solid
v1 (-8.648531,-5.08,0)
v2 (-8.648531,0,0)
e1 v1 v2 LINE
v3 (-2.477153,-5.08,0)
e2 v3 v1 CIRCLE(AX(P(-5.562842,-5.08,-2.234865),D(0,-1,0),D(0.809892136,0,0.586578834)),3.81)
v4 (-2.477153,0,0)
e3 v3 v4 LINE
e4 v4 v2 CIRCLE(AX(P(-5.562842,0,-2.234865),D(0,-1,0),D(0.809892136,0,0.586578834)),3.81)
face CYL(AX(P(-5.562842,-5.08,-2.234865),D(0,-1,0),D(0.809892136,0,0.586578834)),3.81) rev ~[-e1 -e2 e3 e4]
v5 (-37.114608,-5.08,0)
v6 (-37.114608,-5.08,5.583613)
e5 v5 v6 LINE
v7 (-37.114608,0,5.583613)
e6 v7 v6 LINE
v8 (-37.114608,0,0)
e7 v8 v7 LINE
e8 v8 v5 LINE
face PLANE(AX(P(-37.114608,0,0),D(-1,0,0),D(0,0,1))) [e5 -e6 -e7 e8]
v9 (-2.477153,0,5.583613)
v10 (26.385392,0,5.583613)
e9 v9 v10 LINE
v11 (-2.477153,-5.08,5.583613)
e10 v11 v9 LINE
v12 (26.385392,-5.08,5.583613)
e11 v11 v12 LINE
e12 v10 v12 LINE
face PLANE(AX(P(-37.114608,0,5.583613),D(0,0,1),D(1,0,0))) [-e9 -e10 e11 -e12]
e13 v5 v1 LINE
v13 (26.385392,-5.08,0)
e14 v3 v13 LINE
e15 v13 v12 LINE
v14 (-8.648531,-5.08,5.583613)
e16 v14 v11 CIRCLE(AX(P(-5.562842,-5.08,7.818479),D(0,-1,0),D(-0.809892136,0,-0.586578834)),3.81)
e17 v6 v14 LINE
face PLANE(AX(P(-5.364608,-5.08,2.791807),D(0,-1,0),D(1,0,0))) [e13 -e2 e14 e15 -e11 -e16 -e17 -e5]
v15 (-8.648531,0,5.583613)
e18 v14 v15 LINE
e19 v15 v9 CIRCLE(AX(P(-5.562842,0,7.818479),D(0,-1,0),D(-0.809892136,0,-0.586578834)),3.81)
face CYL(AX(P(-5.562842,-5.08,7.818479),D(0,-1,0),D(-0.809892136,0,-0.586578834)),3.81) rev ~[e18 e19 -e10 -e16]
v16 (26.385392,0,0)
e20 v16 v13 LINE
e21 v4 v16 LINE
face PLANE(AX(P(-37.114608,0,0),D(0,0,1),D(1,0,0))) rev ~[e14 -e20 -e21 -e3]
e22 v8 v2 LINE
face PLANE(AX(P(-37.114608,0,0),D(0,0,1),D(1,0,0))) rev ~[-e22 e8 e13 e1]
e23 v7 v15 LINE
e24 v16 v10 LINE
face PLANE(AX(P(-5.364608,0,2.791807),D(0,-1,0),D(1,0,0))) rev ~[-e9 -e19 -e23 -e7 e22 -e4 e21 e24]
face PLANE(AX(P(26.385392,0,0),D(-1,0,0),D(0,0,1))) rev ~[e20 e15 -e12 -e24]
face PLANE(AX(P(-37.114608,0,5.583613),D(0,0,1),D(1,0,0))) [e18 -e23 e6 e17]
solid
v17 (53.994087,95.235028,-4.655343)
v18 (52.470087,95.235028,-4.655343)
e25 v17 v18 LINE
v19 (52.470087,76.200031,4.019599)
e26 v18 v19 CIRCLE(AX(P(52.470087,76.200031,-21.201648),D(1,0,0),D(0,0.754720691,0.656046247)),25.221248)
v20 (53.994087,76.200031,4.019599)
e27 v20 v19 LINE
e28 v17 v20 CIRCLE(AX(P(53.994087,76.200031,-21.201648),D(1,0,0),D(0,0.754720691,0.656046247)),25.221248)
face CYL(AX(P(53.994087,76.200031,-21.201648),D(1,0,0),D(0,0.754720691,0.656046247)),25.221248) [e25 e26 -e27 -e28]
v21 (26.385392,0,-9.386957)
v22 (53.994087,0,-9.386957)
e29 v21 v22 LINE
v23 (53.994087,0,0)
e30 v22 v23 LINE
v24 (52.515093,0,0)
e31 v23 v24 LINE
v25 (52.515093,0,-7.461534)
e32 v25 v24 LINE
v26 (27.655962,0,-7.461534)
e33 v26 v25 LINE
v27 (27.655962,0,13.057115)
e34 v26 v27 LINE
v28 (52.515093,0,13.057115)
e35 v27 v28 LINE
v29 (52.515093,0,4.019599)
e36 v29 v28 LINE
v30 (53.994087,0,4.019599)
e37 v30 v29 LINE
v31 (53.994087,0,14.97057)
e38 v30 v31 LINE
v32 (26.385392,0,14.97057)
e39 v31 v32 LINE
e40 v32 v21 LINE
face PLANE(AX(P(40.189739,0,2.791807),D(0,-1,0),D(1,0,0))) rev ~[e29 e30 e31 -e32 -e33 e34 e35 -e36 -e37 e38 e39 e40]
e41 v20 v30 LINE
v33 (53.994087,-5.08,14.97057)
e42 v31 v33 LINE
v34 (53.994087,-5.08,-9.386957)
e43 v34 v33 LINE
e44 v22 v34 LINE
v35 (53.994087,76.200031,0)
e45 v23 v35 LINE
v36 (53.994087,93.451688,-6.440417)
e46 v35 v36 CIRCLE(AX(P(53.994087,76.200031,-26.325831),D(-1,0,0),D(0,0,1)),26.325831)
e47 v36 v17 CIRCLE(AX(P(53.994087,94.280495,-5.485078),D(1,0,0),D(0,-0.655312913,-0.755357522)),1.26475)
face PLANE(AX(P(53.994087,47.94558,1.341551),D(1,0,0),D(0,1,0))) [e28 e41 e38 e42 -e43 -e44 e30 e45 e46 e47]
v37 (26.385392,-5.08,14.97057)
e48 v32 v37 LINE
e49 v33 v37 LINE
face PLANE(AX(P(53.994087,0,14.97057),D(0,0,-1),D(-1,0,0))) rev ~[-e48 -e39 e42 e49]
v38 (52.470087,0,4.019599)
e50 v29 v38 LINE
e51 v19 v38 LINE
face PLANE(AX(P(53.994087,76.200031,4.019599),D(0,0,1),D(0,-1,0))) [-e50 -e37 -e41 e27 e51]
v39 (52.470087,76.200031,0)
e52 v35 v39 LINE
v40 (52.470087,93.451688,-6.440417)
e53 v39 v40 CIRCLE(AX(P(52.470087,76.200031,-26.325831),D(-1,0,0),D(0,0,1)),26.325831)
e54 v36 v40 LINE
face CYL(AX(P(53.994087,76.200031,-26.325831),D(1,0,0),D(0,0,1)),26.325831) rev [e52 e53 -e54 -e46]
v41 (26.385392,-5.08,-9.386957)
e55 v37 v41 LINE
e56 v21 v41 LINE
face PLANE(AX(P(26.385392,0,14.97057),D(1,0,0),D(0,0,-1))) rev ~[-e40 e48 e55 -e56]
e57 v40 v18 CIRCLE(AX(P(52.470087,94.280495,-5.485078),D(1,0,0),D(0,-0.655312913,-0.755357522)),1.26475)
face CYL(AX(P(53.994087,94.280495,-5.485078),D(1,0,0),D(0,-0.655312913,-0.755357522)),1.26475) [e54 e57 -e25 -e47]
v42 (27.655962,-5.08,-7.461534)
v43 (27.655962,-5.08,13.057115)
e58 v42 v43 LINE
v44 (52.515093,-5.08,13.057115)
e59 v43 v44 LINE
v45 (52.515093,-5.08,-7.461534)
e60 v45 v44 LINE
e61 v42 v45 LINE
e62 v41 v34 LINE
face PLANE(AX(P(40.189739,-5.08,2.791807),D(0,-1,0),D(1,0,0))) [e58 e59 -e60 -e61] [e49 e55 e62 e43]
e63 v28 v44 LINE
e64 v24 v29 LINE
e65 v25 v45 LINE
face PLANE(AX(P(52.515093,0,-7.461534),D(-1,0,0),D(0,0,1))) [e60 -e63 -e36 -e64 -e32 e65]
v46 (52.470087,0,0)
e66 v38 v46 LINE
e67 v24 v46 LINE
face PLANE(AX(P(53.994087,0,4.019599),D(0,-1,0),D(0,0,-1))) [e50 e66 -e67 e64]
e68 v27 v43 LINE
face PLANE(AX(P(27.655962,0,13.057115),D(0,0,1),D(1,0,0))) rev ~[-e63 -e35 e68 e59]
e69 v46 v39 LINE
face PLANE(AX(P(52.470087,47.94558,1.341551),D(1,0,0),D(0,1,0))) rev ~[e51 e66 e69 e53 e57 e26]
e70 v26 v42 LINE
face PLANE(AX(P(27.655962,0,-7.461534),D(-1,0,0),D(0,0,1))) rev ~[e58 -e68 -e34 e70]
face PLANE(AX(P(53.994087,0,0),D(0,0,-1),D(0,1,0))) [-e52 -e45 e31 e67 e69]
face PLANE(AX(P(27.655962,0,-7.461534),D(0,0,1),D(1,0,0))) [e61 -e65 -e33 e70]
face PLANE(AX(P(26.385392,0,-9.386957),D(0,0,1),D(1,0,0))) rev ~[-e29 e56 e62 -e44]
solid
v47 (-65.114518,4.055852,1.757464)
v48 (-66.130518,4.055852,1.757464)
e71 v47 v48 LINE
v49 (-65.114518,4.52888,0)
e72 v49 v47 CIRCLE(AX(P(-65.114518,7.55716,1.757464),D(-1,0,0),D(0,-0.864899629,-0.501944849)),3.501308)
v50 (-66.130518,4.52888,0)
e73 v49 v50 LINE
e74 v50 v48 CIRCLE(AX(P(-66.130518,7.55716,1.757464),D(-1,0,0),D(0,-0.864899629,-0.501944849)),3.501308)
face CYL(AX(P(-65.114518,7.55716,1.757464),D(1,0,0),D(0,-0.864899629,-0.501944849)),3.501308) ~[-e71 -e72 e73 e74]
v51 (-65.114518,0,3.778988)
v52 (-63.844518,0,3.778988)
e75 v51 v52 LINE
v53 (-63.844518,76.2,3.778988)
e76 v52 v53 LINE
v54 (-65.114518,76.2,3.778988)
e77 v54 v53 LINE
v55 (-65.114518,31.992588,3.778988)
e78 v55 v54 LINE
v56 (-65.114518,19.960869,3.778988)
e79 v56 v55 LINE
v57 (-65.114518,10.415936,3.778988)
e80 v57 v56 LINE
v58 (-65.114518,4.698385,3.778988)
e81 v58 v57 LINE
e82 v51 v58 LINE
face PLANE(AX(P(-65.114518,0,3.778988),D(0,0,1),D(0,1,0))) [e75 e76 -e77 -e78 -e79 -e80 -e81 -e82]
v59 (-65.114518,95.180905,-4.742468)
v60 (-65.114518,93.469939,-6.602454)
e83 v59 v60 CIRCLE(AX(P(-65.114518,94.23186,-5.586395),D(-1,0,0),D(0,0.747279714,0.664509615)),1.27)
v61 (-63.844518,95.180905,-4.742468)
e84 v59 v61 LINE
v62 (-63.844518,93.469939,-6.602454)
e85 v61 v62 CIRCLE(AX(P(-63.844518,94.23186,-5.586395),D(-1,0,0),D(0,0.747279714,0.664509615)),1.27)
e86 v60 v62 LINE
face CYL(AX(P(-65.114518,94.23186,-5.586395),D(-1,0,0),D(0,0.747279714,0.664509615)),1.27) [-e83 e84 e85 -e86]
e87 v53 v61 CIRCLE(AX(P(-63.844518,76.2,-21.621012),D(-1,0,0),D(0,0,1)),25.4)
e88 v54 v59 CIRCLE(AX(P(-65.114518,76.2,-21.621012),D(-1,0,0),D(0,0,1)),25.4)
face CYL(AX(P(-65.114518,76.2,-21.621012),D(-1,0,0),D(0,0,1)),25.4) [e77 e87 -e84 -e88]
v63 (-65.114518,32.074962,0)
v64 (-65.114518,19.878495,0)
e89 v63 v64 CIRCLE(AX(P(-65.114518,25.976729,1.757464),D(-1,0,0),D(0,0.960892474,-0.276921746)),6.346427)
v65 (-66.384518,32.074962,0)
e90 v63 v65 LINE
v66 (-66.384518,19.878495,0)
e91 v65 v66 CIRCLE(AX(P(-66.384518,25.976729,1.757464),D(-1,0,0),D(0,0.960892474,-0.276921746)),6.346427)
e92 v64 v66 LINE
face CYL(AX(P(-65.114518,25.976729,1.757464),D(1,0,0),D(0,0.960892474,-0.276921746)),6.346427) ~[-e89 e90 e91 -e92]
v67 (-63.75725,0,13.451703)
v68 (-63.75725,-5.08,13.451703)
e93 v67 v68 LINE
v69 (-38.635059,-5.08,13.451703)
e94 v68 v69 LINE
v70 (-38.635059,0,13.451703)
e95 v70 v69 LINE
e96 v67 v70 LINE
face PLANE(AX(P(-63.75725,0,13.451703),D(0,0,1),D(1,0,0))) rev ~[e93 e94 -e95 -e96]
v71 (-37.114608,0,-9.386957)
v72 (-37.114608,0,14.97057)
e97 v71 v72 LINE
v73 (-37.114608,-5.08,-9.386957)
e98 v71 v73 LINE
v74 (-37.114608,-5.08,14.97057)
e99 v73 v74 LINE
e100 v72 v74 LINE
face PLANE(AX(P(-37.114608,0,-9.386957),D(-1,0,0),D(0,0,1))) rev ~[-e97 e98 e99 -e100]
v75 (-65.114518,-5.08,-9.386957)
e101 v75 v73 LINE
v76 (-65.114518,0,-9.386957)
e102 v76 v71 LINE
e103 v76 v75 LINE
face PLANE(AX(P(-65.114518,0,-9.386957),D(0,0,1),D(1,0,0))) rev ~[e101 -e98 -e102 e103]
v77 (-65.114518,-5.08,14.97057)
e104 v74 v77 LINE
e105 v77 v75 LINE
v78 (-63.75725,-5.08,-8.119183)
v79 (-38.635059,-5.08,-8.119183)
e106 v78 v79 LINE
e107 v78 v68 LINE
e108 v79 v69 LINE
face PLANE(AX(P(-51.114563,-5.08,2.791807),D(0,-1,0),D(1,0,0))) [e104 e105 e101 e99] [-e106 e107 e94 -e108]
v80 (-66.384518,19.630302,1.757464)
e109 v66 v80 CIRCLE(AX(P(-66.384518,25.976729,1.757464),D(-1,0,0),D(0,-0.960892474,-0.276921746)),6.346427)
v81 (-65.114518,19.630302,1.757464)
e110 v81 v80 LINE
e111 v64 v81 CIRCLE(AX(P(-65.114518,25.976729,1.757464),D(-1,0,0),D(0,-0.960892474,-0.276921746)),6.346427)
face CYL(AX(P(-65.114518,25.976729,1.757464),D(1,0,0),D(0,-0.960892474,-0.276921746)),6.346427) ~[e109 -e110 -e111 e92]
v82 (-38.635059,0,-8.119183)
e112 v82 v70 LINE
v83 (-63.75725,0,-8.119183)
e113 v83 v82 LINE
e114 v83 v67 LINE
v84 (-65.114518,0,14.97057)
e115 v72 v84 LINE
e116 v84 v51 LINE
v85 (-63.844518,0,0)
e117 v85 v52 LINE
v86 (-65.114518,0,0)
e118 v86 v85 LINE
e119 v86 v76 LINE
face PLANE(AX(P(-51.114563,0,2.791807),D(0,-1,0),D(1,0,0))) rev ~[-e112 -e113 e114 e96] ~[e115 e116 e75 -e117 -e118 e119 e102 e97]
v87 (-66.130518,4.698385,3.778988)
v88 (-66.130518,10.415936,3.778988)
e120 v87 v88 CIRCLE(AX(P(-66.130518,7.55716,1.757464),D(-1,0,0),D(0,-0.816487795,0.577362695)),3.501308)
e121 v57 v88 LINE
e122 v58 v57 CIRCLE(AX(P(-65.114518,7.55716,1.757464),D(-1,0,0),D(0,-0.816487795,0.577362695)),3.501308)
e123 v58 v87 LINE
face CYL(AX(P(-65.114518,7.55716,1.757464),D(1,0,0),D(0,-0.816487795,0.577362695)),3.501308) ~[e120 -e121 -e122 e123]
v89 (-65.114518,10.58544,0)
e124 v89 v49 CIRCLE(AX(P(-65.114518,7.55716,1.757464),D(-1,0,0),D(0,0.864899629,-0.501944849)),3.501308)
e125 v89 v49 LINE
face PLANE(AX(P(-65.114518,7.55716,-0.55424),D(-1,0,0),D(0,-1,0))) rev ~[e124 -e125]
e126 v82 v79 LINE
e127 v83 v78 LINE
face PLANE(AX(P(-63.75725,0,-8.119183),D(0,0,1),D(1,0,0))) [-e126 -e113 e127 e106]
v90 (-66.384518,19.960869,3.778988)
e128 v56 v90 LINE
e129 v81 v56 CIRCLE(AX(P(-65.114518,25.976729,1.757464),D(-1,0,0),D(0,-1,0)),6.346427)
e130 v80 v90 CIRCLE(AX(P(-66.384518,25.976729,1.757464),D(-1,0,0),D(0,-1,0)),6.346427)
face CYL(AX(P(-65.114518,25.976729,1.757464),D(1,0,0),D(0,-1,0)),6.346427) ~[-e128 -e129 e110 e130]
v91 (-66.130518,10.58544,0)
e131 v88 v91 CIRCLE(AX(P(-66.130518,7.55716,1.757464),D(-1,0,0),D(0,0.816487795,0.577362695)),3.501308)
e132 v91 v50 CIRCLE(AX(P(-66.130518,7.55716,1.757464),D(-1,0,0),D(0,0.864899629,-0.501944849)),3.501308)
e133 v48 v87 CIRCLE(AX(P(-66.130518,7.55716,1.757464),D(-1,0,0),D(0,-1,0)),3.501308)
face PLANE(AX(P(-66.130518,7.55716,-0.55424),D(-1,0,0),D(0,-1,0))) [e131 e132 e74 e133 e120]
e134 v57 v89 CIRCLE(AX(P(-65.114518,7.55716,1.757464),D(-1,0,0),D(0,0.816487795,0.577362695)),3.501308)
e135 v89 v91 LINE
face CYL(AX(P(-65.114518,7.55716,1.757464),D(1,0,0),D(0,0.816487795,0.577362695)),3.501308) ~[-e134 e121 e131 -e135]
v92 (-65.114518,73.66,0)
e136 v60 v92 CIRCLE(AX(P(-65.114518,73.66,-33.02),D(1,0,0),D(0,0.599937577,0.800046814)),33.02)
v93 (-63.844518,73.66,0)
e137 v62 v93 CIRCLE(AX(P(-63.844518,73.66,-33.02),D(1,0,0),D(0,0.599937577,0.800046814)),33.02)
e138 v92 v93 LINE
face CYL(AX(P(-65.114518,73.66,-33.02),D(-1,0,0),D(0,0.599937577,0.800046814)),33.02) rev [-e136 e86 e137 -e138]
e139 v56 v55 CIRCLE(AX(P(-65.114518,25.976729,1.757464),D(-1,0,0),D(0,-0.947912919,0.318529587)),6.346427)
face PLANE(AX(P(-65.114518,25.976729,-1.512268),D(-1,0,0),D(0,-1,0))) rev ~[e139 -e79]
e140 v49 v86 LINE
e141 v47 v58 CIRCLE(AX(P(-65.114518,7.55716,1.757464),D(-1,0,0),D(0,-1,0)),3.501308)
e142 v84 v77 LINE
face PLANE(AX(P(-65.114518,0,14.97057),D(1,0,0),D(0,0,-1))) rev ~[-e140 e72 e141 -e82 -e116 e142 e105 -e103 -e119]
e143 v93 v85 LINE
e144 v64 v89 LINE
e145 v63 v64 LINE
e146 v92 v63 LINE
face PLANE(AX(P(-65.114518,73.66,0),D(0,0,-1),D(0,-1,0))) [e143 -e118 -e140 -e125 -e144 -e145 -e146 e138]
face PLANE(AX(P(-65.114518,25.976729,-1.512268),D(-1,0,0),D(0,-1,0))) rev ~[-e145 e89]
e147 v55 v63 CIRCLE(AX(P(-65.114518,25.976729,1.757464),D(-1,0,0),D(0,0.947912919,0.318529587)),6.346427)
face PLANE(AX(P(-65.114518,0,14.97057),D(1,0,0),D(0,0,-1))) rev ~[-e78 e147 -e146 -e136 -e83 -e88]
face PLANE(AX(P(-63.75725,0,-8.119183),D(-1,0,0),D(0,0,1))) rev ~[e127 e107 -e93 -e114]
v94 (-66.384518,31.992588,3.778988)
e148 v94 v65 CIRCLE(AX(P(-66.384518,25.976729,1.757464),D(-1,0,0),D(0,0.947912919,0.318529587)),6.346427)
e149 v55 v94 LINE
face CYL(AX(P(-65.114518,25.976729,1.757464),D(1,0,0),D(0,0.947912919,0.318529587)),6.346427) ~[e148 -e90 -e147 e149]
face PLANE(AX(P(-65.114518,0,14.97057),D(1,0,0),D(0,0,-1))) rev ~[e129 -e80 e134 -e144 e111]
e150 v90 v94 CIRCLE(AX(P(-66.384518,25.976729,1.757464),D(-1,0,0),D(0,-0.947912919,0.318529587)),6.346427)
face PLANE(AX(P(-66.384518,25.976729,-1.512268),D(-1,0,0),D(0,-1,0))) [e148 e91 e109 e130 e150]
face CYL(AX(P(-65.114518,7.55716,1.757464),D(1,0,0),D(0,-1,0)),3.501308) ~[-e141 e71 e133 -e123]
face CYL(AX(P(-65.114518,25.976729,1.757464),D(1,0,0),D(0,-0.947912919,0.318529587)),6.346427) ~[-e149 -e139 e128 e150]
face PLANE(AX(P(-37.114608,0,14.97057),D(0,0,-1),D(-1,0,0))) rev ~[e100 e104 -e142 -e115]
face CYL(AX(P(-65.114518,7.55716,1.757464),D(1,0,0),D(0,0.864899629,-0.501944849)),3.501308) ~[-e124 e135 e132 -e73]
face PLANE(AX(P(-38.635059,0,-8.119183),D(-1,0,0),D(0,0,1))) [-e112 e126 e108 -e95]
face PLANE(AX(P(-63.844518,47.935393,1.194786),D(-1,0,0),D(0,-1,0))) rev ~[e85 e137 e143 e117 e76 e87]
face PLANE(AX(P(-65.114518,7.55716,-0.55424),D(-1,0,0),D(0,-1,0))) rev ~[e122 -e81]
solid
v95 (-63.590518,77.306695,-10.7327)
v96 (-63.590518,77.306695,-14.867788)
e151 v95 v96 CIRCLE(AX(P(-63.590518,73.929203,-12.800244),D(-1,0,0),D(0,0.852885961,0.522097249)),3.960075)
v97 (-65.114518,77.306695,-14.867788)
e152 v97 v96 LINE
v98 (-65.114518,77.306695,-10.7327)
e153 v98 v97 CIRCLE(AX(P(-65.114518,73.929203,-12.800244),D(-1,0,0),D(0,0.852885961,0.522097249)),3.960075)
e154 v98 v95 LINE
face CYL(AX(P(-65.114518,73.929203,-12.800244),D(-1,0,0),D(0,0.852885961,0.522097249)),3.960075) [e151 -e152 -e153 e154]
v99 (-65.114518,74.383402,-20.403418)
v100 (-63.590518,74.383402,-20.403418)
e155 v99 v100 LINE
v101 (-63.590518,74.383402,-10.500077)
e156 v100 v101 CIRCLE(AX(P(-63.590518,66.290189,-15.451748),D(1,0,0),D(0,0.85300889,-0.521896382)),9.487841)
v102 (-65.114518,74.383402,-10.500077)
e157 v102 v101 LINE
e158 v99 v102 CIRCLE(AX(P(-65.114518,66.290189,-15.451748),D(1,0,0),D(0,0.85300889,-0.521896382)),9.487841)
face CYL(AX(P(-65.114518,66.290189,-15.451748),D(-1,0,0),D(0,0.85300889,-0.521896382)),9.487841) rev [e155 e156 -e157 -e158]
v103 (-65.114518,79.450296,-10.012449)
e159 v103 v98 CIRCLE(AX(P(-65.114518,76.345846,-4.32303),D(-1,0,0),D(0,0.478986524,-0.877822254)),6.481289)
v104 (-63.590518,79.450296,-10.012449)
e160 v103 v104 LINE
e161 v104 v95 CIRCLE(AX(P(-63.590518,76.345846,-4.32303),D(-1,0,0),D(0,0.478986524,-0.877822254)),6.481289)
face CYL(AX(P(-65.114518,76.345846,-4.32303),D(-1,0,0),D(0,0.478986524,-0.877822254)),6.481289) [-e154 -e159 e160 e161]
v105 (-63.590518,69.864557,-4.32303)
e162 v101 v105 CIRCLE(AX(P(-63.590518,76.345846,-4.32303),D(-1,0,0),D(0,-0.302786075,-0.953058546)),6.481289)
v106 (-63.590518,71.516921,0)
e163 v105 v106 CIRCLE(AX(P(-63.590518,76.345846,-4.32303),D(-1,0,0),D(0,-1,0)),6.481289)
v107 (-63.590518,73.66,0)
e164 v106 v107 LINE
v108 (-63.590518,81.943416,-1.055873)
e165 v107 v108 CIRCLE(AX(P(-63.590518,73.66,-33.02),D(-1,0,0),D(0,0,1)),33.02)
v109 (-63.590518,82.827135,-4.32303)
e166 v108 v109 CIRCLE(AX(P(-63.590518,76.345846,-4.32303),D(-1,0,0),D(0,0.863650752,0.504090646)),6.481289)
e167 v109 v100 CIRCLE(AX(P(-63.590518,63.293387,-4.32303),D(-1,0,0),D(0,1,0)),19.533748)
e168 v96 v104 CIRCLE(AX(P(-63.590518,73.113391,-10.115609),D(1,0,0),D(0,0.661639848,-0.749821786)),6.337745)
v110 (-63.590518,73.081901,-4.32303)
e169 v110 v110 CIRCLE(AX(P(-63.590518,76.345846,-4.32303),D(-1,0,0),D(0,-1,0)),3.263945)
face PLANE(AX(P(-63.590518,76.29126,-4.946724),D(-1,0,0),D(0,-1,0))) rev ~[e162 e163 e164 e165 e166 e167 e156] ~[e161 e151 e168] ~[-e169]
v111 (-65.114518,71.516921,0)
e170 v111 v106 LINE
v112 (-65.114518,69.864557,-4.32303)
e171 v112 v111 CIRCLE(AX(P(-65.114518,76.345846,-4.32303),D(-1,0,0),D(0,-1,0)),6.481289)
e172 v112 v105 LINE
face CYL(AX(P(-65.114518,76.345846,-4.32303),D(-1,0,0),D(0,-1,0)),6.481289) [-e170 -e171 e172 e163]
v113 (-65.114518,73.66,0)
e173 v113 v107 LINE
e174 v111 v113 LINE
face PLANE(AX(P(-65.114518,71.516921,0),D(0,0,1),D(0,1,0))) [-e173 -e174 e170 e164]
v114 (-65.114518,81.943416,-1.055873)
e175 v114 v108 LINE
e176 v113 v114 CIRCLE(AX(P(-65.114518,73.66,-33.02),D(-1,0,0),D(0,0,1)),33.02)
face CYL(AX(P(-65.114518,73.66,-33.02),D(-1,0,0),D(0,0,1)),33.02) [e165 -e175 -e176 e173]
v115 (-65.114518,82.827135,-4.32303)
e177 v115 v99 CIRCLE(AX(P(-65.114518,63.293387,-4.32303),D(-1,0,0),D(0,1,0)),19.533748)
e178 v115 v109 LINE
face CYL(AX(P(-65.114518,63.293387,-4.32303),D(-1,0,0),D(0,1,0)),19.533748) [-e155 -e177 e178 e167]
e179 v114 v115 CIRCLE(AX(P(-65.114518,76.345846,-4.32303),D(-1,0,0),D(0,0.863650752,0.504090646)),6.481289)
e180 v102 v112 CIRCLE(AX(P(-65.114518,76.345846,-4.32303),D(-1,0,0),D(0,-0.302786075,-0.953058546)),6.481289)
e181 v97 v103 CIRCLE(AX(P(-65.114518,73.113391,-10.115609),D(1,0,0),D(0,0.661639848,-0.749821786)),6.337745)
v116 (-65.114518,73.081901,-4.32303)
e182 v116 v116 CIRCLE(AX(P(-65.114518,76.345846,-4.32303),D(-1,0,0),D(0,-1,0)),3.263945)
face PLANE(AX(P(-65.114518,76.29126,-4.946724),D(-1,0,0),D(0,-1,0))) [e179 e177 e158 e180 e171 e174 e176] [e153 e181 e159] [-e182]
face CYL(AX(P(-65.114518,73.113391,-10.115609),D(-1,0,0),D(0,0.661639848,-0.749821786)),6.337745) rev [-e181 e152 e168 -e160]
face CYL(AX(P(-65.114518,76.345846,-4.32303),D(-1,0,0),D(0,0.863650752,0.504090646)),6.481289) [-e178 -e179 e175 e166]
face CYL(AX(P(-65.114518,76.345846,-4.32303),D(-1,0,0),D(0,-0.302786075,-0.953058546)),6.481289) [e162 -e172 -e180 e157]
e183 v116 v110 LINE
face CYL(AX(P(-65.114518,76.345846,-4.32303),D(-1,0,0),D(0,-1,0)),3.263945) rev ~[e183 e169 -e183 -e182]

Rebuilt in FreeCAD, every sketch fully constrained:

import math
import FreeCAD as App
import Part
import Sketcher
from FreeCAD import Vector
Q = App.Units.Quantity

doc = App.newDocument("Part")
body = doc.addObject("PartDesign::Body", "Body")

sketch1 = body.newObject("Sketcher::SketchObject", "Sketch")
sketch1.AttachmentSupport = (doc.getObject("XZ_Plane"), [""])
sketch1.MapMode = "FlatFace"
sketch1.addGeometry(Part.LineSegment(Vector(26, 15, 0), Vector(26, -9, 0)), False)
sketch1.addGeometry(Part.LineSegment(Vector(26, -9, 0), Vector(54, -9, 0)), False)
sketch1.addGeometry(Part.LineSegment(Vector(54, -9, 0), Vector(54, 15, 0)), False)
sketch1.addGeometry(Part.LineSegment(Vector(54, 15, 0), Vector(26, 15, 0)), False)
sketch1.addGeometry(Part.LineSegment(Vector(53, -7, 0), Vector(28, -7, 0)), False)
sketch1.addGeometry(Part.LineSegment(Vector(28, -7, 0), Vector(28, 13, 0)), False)
sketch1.addGeometry(Part.LineSegment(Vector(28, 13, 0), Vector(53, 13, 0)), False)
sketch1.addGeometry(Part.LineSegment(Vector(53, 13, 0), Vector(53, -7, 0)), False)
sketch1.addConstraint(Sketcher.Constraint("Coincident", 0, 2, 1, 1))
sketch1.addConstraint(Sketcher.Constraint("Coincident", 1, 2, 2, 1))
sketch1.addConstraint(Sketcher.Constraint("Coincident", 2, 2, 3, 1))
sketch1.addConstraint(Sketcher.Constraint("Coincident", 3, 2, 0, 1))
sketch1.addConstraint(Sketcher.Constraint("Coincident", 4, 2, 5, 1))
sketch1.addConstraint(Sketcher.Constraint("Coincident", 5, 2, 6, 1))
sketch1.addConstraint(Sketcher.Constraint("Coincident", 6, 2, 7, 1))
sketch1.addConstraint(Sketcher.Constraint("Coincident", 7, 2, 4, 1))
sketch1.addConstraint(Sketcher.Constraint("Vertical", 0))
sketch1.addConstraint(Sketcher.Constraint("Horizontal", 1))
sketch1.addConstraint(Sketcher.Constraint("Vertical", 2))
sketch1.addConstraint(Sketcher.Constraint("Horizontal", 3))
sketch1.addConstraint(Sketcher.Constraint("Horizontal", 4))
sketch1.addConstraint(Sketcher.Constraint("Vertical", 5))
sketch1.addConstraint(Sketcher.Constraint("Horizontal", 6))
sketch1.addConstraint(Sketcher.Constraint("Vertical", 7))
sketch1.addConstraint(Sketcher.Constraint("DistanceX", 4, 2, 4, 1, Q("24.859131 mm")))
sketch1.addConstraint(Sketcher.Constraint("DistanceY", 5, 1, 5, 2, Q("20.518649 mm")))
sketch1.addConstraint(Sketcher.Constraint("DistanceX", 3, 2, 6, 2, Q("26.129702 mm")))
sketch1.addConstraint(Sketcher.Constraint("DistanceX", 1, 1, 1, 2, Q("27.608696 mm")))
sketch1.addConstraint(Sketcher.Constraint("DistanceY", 0, 2, 0, 1, Q("24.357527 mm")))
sketch1.addConstraint(Sketcher.Constraint("DistanceX", -1, 1, 0, 2, Q("26.385392 mm")))
sketch1.addConstraint(Sketcher.Constraint("DistanceY", -1, 1, 2, 2, Q("14.97057 mm")))
sketch1.addConstraint(Sketcher.Constraint("DistanceY", 0, 2, 5, 2, Q("22.444072 mm")))
pad1 = body.newObject("PartDesign::Pad", "Pad")
pad1.Profile = sketch1
pad1.Length = Q("0.2 in")

sketch2 = body.newObject("Sketcher::SketchObject", "Sketch001")
sketch2.AttachmentSupport = (doc.getObject("XZ_Plane"), [""])
sketch2.MapMode = "FlatFace"
sketch2.addGeometry(Part.LineSegment(Vector(-64, 13, 0), Vector(-64, -8, 0)), False)
sketch2.addGeometry(Part.LineSegment(Vector(-64, -8, 0), Vector(-39, -8, 0)), False)
sketch2.addGeometry(Part.LineSegment(Vector(-39, -8, 0), Vector(-39, 13, 0)), False)
sketch2.addGeometry(Part.LineSegment(Vector(-39, 13, 0), Vector(-64, 13, 0)), False)
sketch2.addGeometry(Part.LineSegment(Vector(28, 13, 0), Vector(28, -7, 0)), False)
sketch2.addGeometry(Part.LineSegment(Vector(28, -7, 0), Vector(53, -7, 0)), False)
sketch2.addGeometry(Part.LineSegment(Vector(53, -7, 0), Vector(53, 13, 0)), False)
sketch2.addGeometry(Part.LineSegment(Vector(53, 13, 0), Vector(28, 13, 0)), False)
sketch2.addConstraint(Sketcher.Constraint("Coincident", 0, 2, 1, 1))
sketch2.addConstraint(Sketcher.Constraint("Coincident", 1, 2, 2, 1))
sketch2.addConstraint(Sketcher.Constraint("Coincident", 2, 2, 3, 1))
sketch2.addConstraint(Sketcher.Constraint("Coincident", 3, 2, 0, 1))
sketch2.addConstraint(Sketcher.Constraint("Coincident", 4, 2, 5, 1))
sketch2.addConstraint(Sketcher.Constraint("Coincident", 5, 2, 6, 1))
sketch2.addConstraint(Sketcher.Constraint("Coincident", 6, 2, 7, 1))
sketch2.addConstraint(Sketcher.Constraint("Coincident", 7, 2, 4, 1))
sketch2.addConstraint(Sketcher.Constraint("Vertical", 0))
sketch2.addConstraint(Sketcher.Constraint("Horizontal", 1))
sketch2.addConstraint(Sketcher.Constraint("Vertical", 2))
sketch2.addConstraint(Sketcher.Constraint("Horizontal", 3))
sketch2.addConstraint(Sketcher.Constraint("Vertical", 4))
sketch2.addConstraint(Sketcher.Constraint("Horizontal", 5))
sketch2.addConstraint(Sketcher.Constraint("Vertical", 6))
sketch2.addConstraint(Sketcher.Constraint("Horizontal", 7))
sketch2.addConstraint(Sketcher.Constraint("DistanceX", 1, 1, 1, 2, Q("25.122192 mm")))
sketch2.addConstraint(Sketcher.Constraint("DistanceX", 5, 1, 5, 2, Q("24.859131 mm")))
sketch2.addConstraint(Sketcher.Constraint("DistanceY", 4, 2, 4, 1, Q("20.518649 mm")))
sketch2.addConstraint(Sketcher.Constraint("DistanceY", 1, 2, 6, 2, Q("21.176298 mm")))
sketch2.addConstraint(Sketcher.Constraint("DistanceY", 0, 2, 0, 1, Q("21.570887 mm")))
sketch2.addConstraint(Sketcher.Constraint("DistanceX", 0, 2, -1, 1, Q("63.75725 mm")))
sketch2.addConstraint(Sketcher.Constraint("DistanceX", -1, 1, 4, 2, Q("27.655962 mm")))
sketch2.addConstraint(Sketcher.Constraint("DistanceY", 0, 2, -1, 1, Q("8.119183 mm")))
pocket1 = body.newObject("PartDesign::Pocket", "Pocket")
pocket1.Profile = sketch2
pocket1.Length = Q("0.2 in")
pocket1.Reversed = True

sketch3 = body.newObject("Sketcher::SketchObject", "Sketch002")
sketch3.AttachmentSupport = (doc.getObject("YZ_Plane"), [""])
sketch3.MapMode = "FlatFace"
sketch3.AttachmentOffset = App.Placement(Vector(0, 0, 53.994087), App.Rotation())
sketch3.addGeometry(Part.LineSegment(Vector(76.2, 4, 0), Vector(0, 4, 0)), False)
sketch3.addGeometry(Part.LineSegment(Vector(0, 4, 0), Vector(0, 0, 0)), False)
sketch3.addGeometry(Part.LineSegment(Vector(0, 0, 0), Vector(76.2, 0, 0)), False)
sketch3.addGeometry(Part.ArcOfCircle(Part.Circle(Vector(76.2, -26.3, 0), Vector(0, 0, 1), 26.3), math.radians(49), math.radians(90)), False)
sketch3.addGeometry(Part.ArcOfCircle(Part.Circle(Vector(94.3, -5.5, 0), Vector(0, 0, 1), 1.3), math.radians(-131), math.radians(41)), False)
sketch3.addGeometry(Part.ArcOfCircle(Part.Circle(Vector(76.2, -21.2, 0), Vector(0, 0, 1), 25.2), math.radians(41), math.radians(90)), False)
sketch3.addConstraint(Sketcher.Constraint("Coincident", 0, 2, 1, 1))
sketch3.addConstraint(Sketcher.Constraint("Coincident", 1, 2, 2, 1))
sketch3.addConstraint(Sketcher.Constraint("Tangent", 2, 2, 3, 2))
sketch3.addConstraint(Sketcher.Constraint("Tangent", 3, 1, 4, 1))
sketch3.addConstraint(Sketcher.Constraint("Tangent", 4, 2, 5, 1))
sketch3.addConstraint(Sketcher.Constraint("Tangent", 5, 2, 0, 1))
sketch3.addConstraint(Sketcher.Constraint("Horizontal", 0))
sketch3.addConstraint(Sketcher.Constraint("Vertical", 1))
sketch3.addConstraint(Sketcher.Constraint("Horizontal", 2))
sketch3.addConstraint(Sketcher.Constraint("Coincident", 1, 2, -1, 1))
sketch3.addConstraint(Sketcher.Constraint("Vertical", 3, 3, 5, 3))
sketch3.addConstraint(Sketcher.Constraint("Radius", 3, Q("26.325831 mm")))
sketch3.addConstraint(Sketcher.Constraint("Radius", 4, Q("1.26475 mm")))
sketch3.addConstraint(Sketcher.Constraint("DistanceY", 1, 2, 1, 1, Q("4.019599 mm")))
sketch3.addConstraint(Sketcher.Constraint("Radius", 5, Q("25.221248 mm")))
sketch3.addConstraint(Sketcher.Constraint("DistanceX", 0, 2, 0, 1, Q("76.200031 mm")))
pad2 = body.newObject("PartDesign::Pad", "Pad001")
pad2.Profile = sketch3
pad2.Length = Q("0.06 in")
pad2.Reversed = True

sketch4 = body.newObject("Sketcher::SketchObject", "Sketch003")
sketch4.AttachmentSupport = (doc.getObject("YZ_Plane"), [""])
sketch4.MapMode = "FlatFace"
sketch4.AttachmentOffset = App.Placement(Vector(0, 0, -65.114518), App.Rotation())
sketch4.addGeometry(Part.Circle(Vector(76.3, -4.3, 0), Vector(0, 0, 1), 3.3), False)
sketch4.addGeometry(Part.ArcOfCircle(Part.Circle(Vector(76.3, -4.3, 0), Vector(0, 0, 1), 6.5), math.radians(-81), math.radians(-61)), False)
sketch4.addGeometry(Part.ArcOfCircle(Part.Circle(Vector(73.1, -10.1, 0), Vector(0, 0, 1), 6.3), math.radians(-49), math.radians(1)), False)
sketch4.addGeometry(Part.ArcOfCircle(Part.Circle(Vector(73.9, -12.8, 0), Vector(0, 0, 1), 4), math.radians(-31), math.radians(31)), False)
sketch4.addConstraint(Sketcher.Constraint("Coincident", 1, 2, 2, 2))
sketch4.addConstraint(Sketcher.Constraint("Coincident", 2, 1, 3, 1))
sketch4.addConstraint(Sketcher.Constraint("Coincident", 3, 2, 1, 1))
sketch4.addConstraint(Sketcher.Constraint("Coincident", 1, 3, 0, 3))
sketch4.addConstraint(Sketcher.Constraint("Vertical", 2, 1, 3, 2))
sketch4.addConstraint(Sketcher.Constraint("Diameter", 0, Q("6.52789 mm")))
sketch4.addConstraint(Sketcher.Constraint("Radius", 1, Q("6.481289 mm")))
sketch4.addConstraint(Sketcher.Constraint("Radius", 2, Q("6.337745 mm")))
sketch4.addConstraint(Sketcher.Constraint("Radius", 3, Q("3.960075 mm")))
sketch4.addConstraint(Sketcher.Constraint("DistanceY", 3, 2, -1, 1, Q("10.7327 mm")))
sketch4.addConstraint(Sketcher.Constraint("DistanceX", 2, 1, 1, 2, Q("2.143601 mm")))
sketch4.addConstraint(Sketcher.Constraint("DistanceY", 0, 3, -1, 1, Q("4.32303 mm")))
sketch4.addConstraint(Sketcher.Constraint("DistanceX", -1, 1, 2, 3, Q("73.113391 mm")))
sketch4.addConstraint(Sketcher.Constraint("DistanceY", 2, 3, -1, 1, Q("10.115609 mm")))
pocket2 = body.newObject("PartDesign::Pocket", "Pocket001")
pocket2.Profile = sketch4
pocket2.Length = Q("1 in")
pocket2.Reversed = True
body2 = doc.addObject("PartDesign::Body", "Body001")

sketch5 = body2.newObject("Sketcher::SketchObject", "Sketch004")
sketch5.AttachmentSupport = (doc.getObject("XZ_Plane001"), [""])
sketch5.MapMode = "FlatFace"
sketch5.addGeometry(Part.LineSegment(Vector(-37, 15, 0), Vector(-65, 15, 0)), False)
sketch5.addGeometry(Part.LineSegment(Vector(-65, 15, 0), Vector(-65, -9, 0)), False)
sketch5.addGeometry(Part.LineSegment(Vector(-65, -9, 0), Vector(-37, -9, 0)), False)
sketch5.addGeometry(Part.LineSegment(Vector(-37, -9, 0), Vector(-37, 15, 0)), False)
sketch5.addGeometry(Part.LineSegment(Vector(-39, -8, 0), Vector(-64, -8, 0)), False)
sketch5.addGeometry(Part.LineSegment(Vector(-64, -8, 0), Vector(-64, 13, 0)), False)
sketch5.addGeometry(Part.LineSegment(Vector(-64, 13, 0), Vector(-39, 13, 0)), False)
sketch5.addGeometry(Part.LineSegment(Vector(-39, 13, 0), Vector(-39, -8, 0)), False)
sketch5.addConstraint(Sketcher.Constraint("Coincident", 0, 2, 1, 1))
sketch5.addConstraint(Sketcher.Constraint("Coincident", 1, 2, 2, 1))
sketch5.addConstraint(Sketcher.Constraint("Coincident", 2, 2, 3, 1))
sketch5.addConstraint(Sketcher.Constraint("Coincident", 3, 2, 0, 1))
sketch5.addConstraint(Sketcher.Constraint("Coincident", 4, 2, 5, 1))
sketch5.addConstraint(Sketcher.Constraint("Coincident", 5, 2, 6, 1))
sketch5.addConstraint(Sketcher.Constraint("Coincident", 6, 2, 7, 1))
sketch5.addConstraint(Sketcher.Constraint("Coincident", 7, 2, 4, 1))
sketch5.addConstraint(Sketcher.Constraint("Horizontal", 0))
sketch5.addConstraint(Sketcher.Constraint("Vertical", 1))
sketch5.addConstraint(Sketcher.Constraint("Horizontal", 2))
sketch5.addConstraint(Sketcher.Constraint("Vertical", 3))
sketch5.addConstraint(Sketcher.Constraint("Horizontal", 4))
sketch5.addConstraint(Sketcher.Constraint("Vertical", 5))
sketch5.addConstraint(Sketcher.Constraint("Horizontal", 6))
sketch5.addConstraint(Sketcher.Constraint("Vertical", 7))
sketch5.addConstraint(Sketcher.Constraint("DistanceX", 0, 2, 0, 1, Q("27.99991 mm")))
sketch5.addConstraint(Sketcher.Constraint("DistanceX", 4, 2, 4, 1, Q("25.122192 mm")))
sketch5.addConstraint(Sketcher.Constraint("DistanceY", 1, 2, 1, 1, Q("24.357527 mm")))
sketch5.addConstraint(Sketcher.Constraint("DistanceY", 5, 1, 5, 2, Q("21.570887 mm")))
sketch5.addConstraint(Sketcher.Constraint("DistanceX", 0, 2, -1, 1, Q("65.114518 mm")))
sketch5.addConstraint(Sketcher.Constraint("DistanceY", -1, 1, 0, 2, Q("14.97057 mm")))
sketch5.addConstraint(Sketcher.Constraint("DistanceX", 4, 2, -1, 1, Q("63.75725 mm")))
sketch5.addConstraint(Sketcher.Constraint("DistanceY", 1, 2, 5, 2, Q("22.83866 mm")))
pad3 = body2.newObject("PartDesign::Pad", "Pad002")
pad3.Profile = sketch5
pad3.Length = Q("0.2 in")

sketch6 = body2.newObject("Sketcher::SketchObject", "Sketch005")
sketch6.AttachmentSupport = (doc.getObject("YZ_Plane001"), [""])
sketch6.MapMode = "FlatFace"
sketch6.AttachmentOffset = App.Placement(Vector(0, 0, -65.114518), App.Rotation())
sketch6.addGeometry(Part.LineSegment(Vector(0, 0, 0), Vector(0, 3.8, 0)), False)
sketch6.addGeometry(Part.LineSegment(Vector(0, 3.8, 0), Vector(76.2, 3.8, 0)), False)
sketch6.addGeometry(Part.ArcOfCircle(Part.Circle(Vector(76.2, -21.6, 0), Vector(0, 0, 1), 25.4), math.radians(42), math.radians(90)), False)
sketch6.addGeometry(Part.ArcOfCircle(Part.Circle(Vector(94.2, -5.6, 0), Vector(0, 0, 1), 1.3), math.radians(-127), math.radians(42)), False)
sketch6.addGeometry(Part.ArcOfCircle(Part.Circle(Vector(73.7, -33, 0), Vector(0, 0, 1), 33), math.radians(53), math.radians(90)), False)
sketch6.addGeometry(Part.LineSegment(Vector(73.7, 0, 0), Vector(0, 0, 0)), False)
sketch6.addConstraint(Sketcher.Constraint("Coincident", 0, 2, 1, 1))
sketch6.addConstraint(Sketcher.Constraint("Tangent", 1, 2, 2, 2))
sketch6.addConstraint(Sketcher.Constraint("Tangent", 2, 1, 3, 2))
sketch6.addConstraint(Sketcher.Constraint("Tangent", 3, 1, 4, 1))
sketch6.addConstraint(Sketcher.Constraint("Tangent", 4, 2, 5, 1))
sketch6.addConstraint(Sketcher.Constraint("Coincident", 5, 2, 0, 1))
sketch6.addConstraint(Sketcher.Constraint("Vertical", 0))
sketch6.addConstraint(Sketcher.Constraint("Horizontal", 1))
sketch6.addConstraint(Sketcher.Constraint("Horizontal", 5))
sketch6.addConstraint(Sketcher.Constraint("Coincident", 5, 2, -1, 1))
sketch6.addConstraint(Sketcher.Constraint("Radius", 2, Q("1 in")))
sketch6.addConstraint(Sketcher.Constraint("Radius", 4, Q("1.3 in")))
sketch6.addConstraint(Sketcher.Constraint("DistanceX", 1, 1, 1, 2, Q("3 in")))
sketch6.addConstraint(Sketcher.Constraint("Radius", 3, Q("0.05 in")))
sketch6.addConstraint(Sketcher.Constraint("DistanceX", 5, 2, 5, 1, Q("2.9 in")))
sketch6.addConstraint(Sketcher.Constraint("DistanceY", 0, 1, 0, 2, Q("3.778988 mm")))
pad4 = body2.newObject("PartDesign::Pad", "Pad003")
pad4.Profile = sketch6
pad4.Length = Q("0.05 in")

sketch7 = body2.newObject("Sketcher::SketchObject", "Sketch006")
sketch7.AttachmentSupport = (doc.getObject("YZ_Plane001"), [""])
sketch7.MapMode = "FlatFace"
sketch7.AttachmentOffset = App.Placement(Vector(0, 0, -65.114518), App.Rotation())
sketch7.addGeometry(Part.ArcOfCircle(Part.Circle(Vector(7.6, 1.8, 0), Vector(0, 0, 1), 3.5), math.radians(-150), math.radians(-30)), False)
sketch7.addGeometry(Part.ArcOfCircle(Part.Circle(Vector(7.6, 1.8, 0), Vector(0, 0, 1), 3.5), math.radians(180), math.radians(210)), False)
sketch7.addGeometry(Part.ArcOfCircle(Part.Circle(Vector(7.6, 1.8, 0), Vector(0, 0, 1), 3.5), math.radians(145), math.radians(180)), False)
sketch7.addGeometry(Part.ArcOfCircle(Part.Circle(Vector(7.6, 1.8, 0), Vector(0, 0, 1), 3.5), math.radians(35), math.radians(145)), False)
sketch7.addGeometry(Part.ArcOfCircle(Part.Circle(Vector(7.6, 1.8, 0), Vector(0, 0, 1), 3.5), math.radians(-30), math.radians(35)), False)
sketch7.addConstraint(Sketcher.Constraint("Tangent", 0, 1, 1, 2))
sketch7.addConstraint(Sketcher.Constraint("Tangent", 1, 1, 2, 2))
sketch7.addConstraint(Sketcher.Constraint("Tangent", 2, 1, 3, 2))
sketch7.addConstraint(Sketcher.Constraint("Tangent", 3, 1, 4, 2))
sketch7.addConstraint(Sketcher.Constraint("Tangent", 4, 1, 0, 2))
sketch7.addConstraint(Sketcher.Constraint("Coincident", 2, 3, 0, 3))
sketch7.addConstraint(Sketcher.Constraint("PointOnObject", 0, 1, -1))
sketch7.addConstraint(Sketcher.Constraint("PointOnObject", 4, 1, -1))
sketch7.addConstraint(Sketcher.Constraint("Horizontal", 4, 3, 1, 1))
sketch7.addConstraint(Sketcher.Constraint("Horizontal", 2, 1, 3, 1))
sketch7.addConstraint(Sketcher.Constraint("Radius", 0, Q("3.501308 mm")))
sketch7.addConstraint(Sketcher.Constraint("DistanceX", -1, 1, 0, 3, Q("7.55716 mm")))
sketch7.addConstraint(Sketcher.Constraint("DistanceX", -1, 1, 0, 1, Q("4.52888 mm")))
sketch7.addConstraint(Sketcher.Constraint("DistanceY", -1, 1, 2, 1, Q("3.778988 mm")))
pad5 = body2.newObject("PartDesign::Pad", "Pad004")
pad5.Profile = sketch7
pad5.Length = Q("0.04 in")
pad5.Reversed = True

sketch8 = body2.newObject("Sketcher::SketchObject", "Sketch007")
sketch8.AttachmentSupport = (doc.getObject("YZ_Plane001"), [""])
sketch8.MapMode = "FlatFace"
sketch8.AttachmentOffset = App.Placement(Vector(0, 0, -65.114518), App.Rotation())
sketch8.addGeometry(Part.ArcOfCircle(Part.Circle(Vector(26, 1.8, 0), Vector(0, 0, 1), 6.3), math.radians(-164), math.radians(-16)), False)
sketch8.addGeometry(Part.ArcOfCircle(Part.Circle(Vector(26, 1.8, 0), Vector(0, 0, 1), 6.3), math.radians(180), math.radians(196.08)), False)
sketch8.addGeometry(Part.ArcOfCircle(Part.Circle(Vector(26, 1.8, 0), Vector(0, 0, 1), 6.3), math.radians(161.43), math.radians(180)), False)
sketch8.addGeometry(Part.ArcOfCircle(Part.Circle(Vector(26, 1.8, 0), Vector(0, 0, 1), 6.3), math.radians(19), math.radians(161)), False)
sketch8.addGeometry(Part.ArcOfCircle(Part.Circle(Vector(26, 1.8, 0), Vector(0, 0, 1), 6.3), math.radians(-16), math.radians(19)), False)
sketch8.addConstraint(Sketcher.Constraint("Tangent", 0, 1, 1, 2))
sketch8.addConstraint(Sketcher.Constraint("Tangent", 1, 1, 2, 2))
sketch8.addConstraint(Sketcher.Constraint("Tangent", 2, 1, 3, 2))
sketch8.addConstraint(Sketcher.Constraint("Tangent", 3, 1, 4, 2))
sketch8.addConstraint(Sketcher.Constraint("Tangent", 4, 1, 0, 2))
sketch8.addConstraint(Sketcher.Constraint("Coincident", 2, 3, 0, 3))
sketch8.addConstraint(Sketcher.Constraint("PointOnObject", 0, 1, -1))
sketch8.addConstraint(Sketcher.Constraint("PointOnObject", 4, 1, -1))
sketch8.addConstraint(Sketcher.Constraint("Horizontal", 4, 3, 1, 1))
sketch8.addConstraint(Sketcher.Constraint("Horizontal", 2, 1, 3, 1))
sketch8.addConstraint(Sketcher.Constraint("Radius", 0, Q("6.346427 mm")))
sketch8.addConstraint(Sketcher.Constraint("DistanceX", -1, 1, 1, 1, Q("19.630302 mm")))
sketch8.addConstraint(Sketcher.Constraint("DistanceX", -1, 1, 2, 1, Q("19.960869 mm")))
sketch8.addConstraint(Sketcher.Constraint("DistanceY", -1, 1, 2, 1, Q("3.778988 mm")))
pad6 = body2.newObject("PartDesign::Pad", "Pad005")
pad6.Profile = sketch8
pad6.Length = Q("0.05 in")
pad6.Reversed = True
body3 = doc.addObject("PartDesign::Body", "Body002")

sketch9 = body3.newObject("Sketcher::SketchObject", "Sketch008")
sketch9.AttachmentSupport = (doc.getObject("XZ_Plane002"), [""])
sketch9.MapMode = "FlatFace"
sketch9.addGeometry(Part.LineSegment(Vector(-37, 6, 0), Vector(-37, 0, 0)), False)
sketch9.addGeometry(Part.LineSegment(Vector(-37, 0, 0), Vector(26, 0, 0)), False)
sketch9.addGeometry(Part.LineSegment(Vector(26, 0, 0), Vector(26, 6, 0)), False)
sketch9.addGeometry(Part.LineSegment(Vector(26, 6, 0), Vector(-37, 6, 0)), False)
sketch9.addConstraint(Sketcher.Constraint("Coincident", 0, 2, 1, 1))
sketch9.addConstraint(Sketcher.Constraint("Coincident", 1, 2, 2, 1))
sketch9.addConstraint(Sketcher.Constraint("Coincident", 2, 2, 3, 1))
sketch9.addConstraint(Sketcher.Constraint("Coincident", 3, 2, 0, 1))
sketch9.addConstraint(Sketcher.Constraint("Vertical", 0))
sketch9.addConstraint(Sketcher.Constraint("Horizontal", 1))
sketch9.addConstraint(Sketcher.Constraint("Vertical", 2))
sketch9.addConstraint(Sketcher.Constraint("Horizontal", 3))
sketch9.addConstraint(Sketcher.Constraint("PointOnObject", 0, 2, -1))
sketch9.addConstraint(Sketcher.Constraint("DistanceX", 1, 1, 1, 2, Q("2.5 in")))
sketch9.addConstraint(Sketcher.Constraint("DistanceY", 0, 2, 0, 1, Q("5.583613 mm")))
sketch9.addConstraint(Sketcher.Constraint("DistanceX", 0, 2, -1, 1, Q("37.114608 mm")))
pad7 = body3.newObject("PartDesign::Pad", "Pad006")
pad7.Profile = sketch9
pad7.Length = Q("0.2 in")

sketch10 = body3.newObject("Sketcher::SketchObject", "Sketch009")
sketch10.AttachmentSupport = (doc.getObject("XZ_Plane002"), [""])
sketch10.MapMode = "FlatFace"
sketch10.AttachmentOffset = App.Placement(Vector(0, 0, 0.2 * 25.4), App.Rotation())
sketch10.addGeometry(Part.LineSegment(Vector(-2.5, 5.6, 0), Vector(-8.6, 5.6, 0)), False)
sketch10.addGeometry(Part.ArcOfCircle(Part.Circle(Vector(-5.6, 7.8, 0), Vector(0, 0, 1), 3.8), math.radians(-144), math.radians(-36)), False)
sketch10.addGeometry(Part.ArcOfCircle(Part.Circle(Vector(-5.6, -2.2, 0), Vector(0, 0, 1), 3.8), math.radians(36), math.radians(144)), False)
sketch10.addGeometry(Part.LineSegment(Vector(-8.6, 0, 0), Vector(-2.5, 0, 0)), False)
sketch10.addConstraint(Sketcher.Constraint("Coincident", 0, 1, 1, 2))
sketch10.addConstraint(Sketcher.Constraint("Coincident", 1, 1, 0, 2))
sketch10.addConstraint(Sketcher.Constraint("Coincident", 2, 1, 3, 2))
sketch10.addConstraint(Sketcher.Constraint("Coincident", 3, 1, 2, 2))
sketch10.addConstraint(Sketcher.Constraint("Horizontal", 0))
sketch10.addConstraint(Sketcher.Constraint("Horizontal", 3))
sketch10.addConstraint(Sketcher.Constraint("Equal", 1, 2))
sketch10.addConstraint(Sketcher.Constraint("PointOnObject", 2, 1, -1))
sketch10.addConstraint(Sketcher.Constraint("Vertical", 1, 3, 2, 3))
sketch10.addConstraint(Sketcher.Constraint("Vertical", 0, 1, 2, 1))
sketch10.addConstraint(Sketcher.Constraint("Radius", 1, Q("0.15 in")))
sketch10.addConstraint(Sketcher.Constraint("DistanceX", 0, 2, 0, 1, Q("6.171378 mm")))
sketch10.addConstraint(Sketcher.Constraint("DistanceX", 1, 3, -1, 1, Q("5.562842 mm")))
sketch10.addConstraint(Sketcher.Constraint("DistanceY", -1, 1, 1, 3, Q("7.818479 mm")))
pocket3 = body3.newObject("PartDesign::Pocket", "Pocket002")
pocket3.Profile = sketch10
pocket3.Length = Q("1 in")
body4 = doc.addObject("PartDesign::Body", "Body003")

sketch11 = body4.newObject("Sketcher::SketchObject", "Sketch010")
sketch11.AttachmentSupport = (doc.getObject("YZ_Plane003"), [""])
sketch11.MapMode = "FlatFace"
sketch11.AttachmentOffset = App.Placement(Vector(0, 0, -65.114518), App.Rotation())
sketch11.addGeometry(Part.ArcOfCircle(Part.Circle(Vector(76.3, -4.3, 0), Vector(0, 0, 1), 6.5), math.radians(0), math.radians(30)), False)
sketch11.addGeometry(Part.ArcOfCircle(Part.Circle(Vector(63.3, -4.3, 0), Vector(0, 0, 1), 19.5), math.radians(-55), math.radians(0)), False)
sketch11.addGeometry(Part.ArcOfCircle(Part.Circle(Vector(66.3, -15.5, 0), Vector(0, 0, 1), 9.5), math.radians(-31), math.radians(31)), False)
sketch11.addGeometry(Part.ArcOfCircle(Part.Circle(Vector(76.3, -4.3, 0), Vector(0, 0, 1), 6.5), math.radians(180), math.radians(252)), False)
sketch11.addGeometry(Part.ArcOfCircle(Part.Circle(Vector(76.3, -4.3, 0), Vector(0, 0, 1), 6.5), math.radians(138), math.radians(180)), False)
sketch11.addGeometry(Part.LineSegment(Vector(71.5, 0, 0), Vector(73.7, 0, 0)), False)
sketch11.addGeometry(Part.ArcOfCircle(Part.Circle(Vector(73.7, -33, 0), Vector(0, 0, 1), 33), math.radians(75.47), math.radians(90)), False)
sketch11.addGeometry(Part.ArcOfCircle(Part.Circle(Vector(76.3, -4.3, 0), Vector(0, 0, 1), 6.5), math.radians(-81), math.radians(-61)), False)
sketch11.addGeometry(Part.ArcOfCircle(Part.Circle(Vector(73.9, -12.8, 0), Vector(0, 0, 1), 4), math.radians(-31), math.radians(31)), False)
sketch11.addGeometry(Part.ArcOfCircle(Part.Circle(Vector(73.1, -10.1, 0), Vector(0, 0, 1), 6.3), math.radians(-49), math.radians(1)), False)
sketch11.addGeometry(Part.Circle(Vector(76.3, -4.3, 0), Vector(0, 0, 1), 3.3), False)
sketch11.addConstraint(Sketcher.Constraint("Tangent", 0, 1, 1, 2))
sketch11.addConstraint(Sketcher.Constraint("Coincident", 1, 1, 2, 1))
sketch11.addConstraint(Sketcher.Constraint("Coincident", 2, 2, 3, 2))
sketch11.addConstraint(Sketcher.Constraint("Tangent", 3, 1, 4, 2))
sketch11.addConstraint(Sketcher.Constraint("Coincident", 4, 1, 5, 1))
sketch11.addConstraint(Sketcher.Constraint("Tangent", 5, 2, 6, 2))
sketch11.addConstraint(Sketcher.Constraint("Coincident", 6, 1, 0, 2))
sketch11.addConstraint(Sketcher.Constraint("Coincident", 7, 1, 8, 2))
sketch11.addConstraint(Sketcher.Constraint("Coincident", 8, 1, 9, 1))
sketch11.addConstraint(Sketcher.Constraint("Coincident", 9, 2, 7, 2))
sketch11.addConstraint(Sketcher.Constraint("Horizontal", 5))
sketch11.addConstraint(Sketcher.Constraint("Coincident", 3, 3, 0, 3))
sketch11.addConstraint(Sketcher.Constraint("Coincident", 7, 3, 0, 3))
sketch11.addConstraint(Sketcher.Constraint("Coincident", 10, 3, 0, 3))
sketch11.addConstraint(Sketcher.Constraint("Equal", 0, 3))
sketch11.addConstraint(Sketcher.Constraint("Equal", 3, 4))
sketch11.addConstraint(Sketcher.Constraint("Equal", 4, 7))
sketch11.addConstraint(Sketcher.Constraint("PointOnObject", 4, 1, -1))
sketch11.addConstraint(Sketcher.Constraint("Horizontal", 0, 3, 1, 3))
sketch11.addConstraint(Sketcher.Constraint("Horizontal", 0, 1, 3, 1))
sketch11.addConstraint(Sketcher.Constraint("Vertical", 1, 1, 2, 2))
sketch11.addConstraint(Sketcher.Constraint("Vertical", 7, 1, 8, 1))
sketch11.addConstraint(Sketcher.Constraint("Radius", 6, Q("1.3 in")))
sketch11.addConstraint(Sketcher.Constraint("DistanceX", -1, 1, 6, 3, Q("2.9 in")))
sketch11.addConstraint(Sketcher.Constraint("Diameter", 10, Q("6.52789 mm")))
sketch11.addConstraint(Sketcher.Constraint("Radius", 0, Q("6.481289 mm")))
sketch11.addConstraint(Sketcher.Constraint("Radius", 1, Q("19.533748 mm")))
sketch11.addConstraint(Sketcher.Constraint("Radius", 2, Q("9.487841 mm")))
sketch11.addConstraint(Sketcher.Constraint("Radius", 8, Q("3.960075 mm")))
sketch11.addConstraint(Sketcher.Constraint("Radius", 9, Q("6.337745 mm")))
sketch11.addConstraint(Sketcher.Constraint("DistanceX", 5, 1, 5, 2, Q("2.143079 mm")))
sketch11.addConstraint(Sketcher.Constraint("DistanceY", 7, 1, -1, 1, Q("10.7327 mm")))
sketch11.addConstraint(Sketcher.Constraint("DistanceX", 8, 3, 1, 1, Q("0.454199 mm")))
sketch11.addConstraint(Sketcher.Constraint("DistanceX", 7, 1, 9, 2, Q("2.143601 mm")))
sketch11.addConstraint(Sketcher.Constraint("DistanceY", 0, 3, -1, 1, Q("4.32303 mm")))
sketch11.addConstraint(Sketcher.Constraint("DistanceX", -1, 1, 2, 3, Q("66.290189 mm")))
pad8 = body4.newObject("PartDesign::Pad", "Pad007")
pad8.Profile = sketch11
pad8.Length = Q("0.06 in")

doc.recompute()
